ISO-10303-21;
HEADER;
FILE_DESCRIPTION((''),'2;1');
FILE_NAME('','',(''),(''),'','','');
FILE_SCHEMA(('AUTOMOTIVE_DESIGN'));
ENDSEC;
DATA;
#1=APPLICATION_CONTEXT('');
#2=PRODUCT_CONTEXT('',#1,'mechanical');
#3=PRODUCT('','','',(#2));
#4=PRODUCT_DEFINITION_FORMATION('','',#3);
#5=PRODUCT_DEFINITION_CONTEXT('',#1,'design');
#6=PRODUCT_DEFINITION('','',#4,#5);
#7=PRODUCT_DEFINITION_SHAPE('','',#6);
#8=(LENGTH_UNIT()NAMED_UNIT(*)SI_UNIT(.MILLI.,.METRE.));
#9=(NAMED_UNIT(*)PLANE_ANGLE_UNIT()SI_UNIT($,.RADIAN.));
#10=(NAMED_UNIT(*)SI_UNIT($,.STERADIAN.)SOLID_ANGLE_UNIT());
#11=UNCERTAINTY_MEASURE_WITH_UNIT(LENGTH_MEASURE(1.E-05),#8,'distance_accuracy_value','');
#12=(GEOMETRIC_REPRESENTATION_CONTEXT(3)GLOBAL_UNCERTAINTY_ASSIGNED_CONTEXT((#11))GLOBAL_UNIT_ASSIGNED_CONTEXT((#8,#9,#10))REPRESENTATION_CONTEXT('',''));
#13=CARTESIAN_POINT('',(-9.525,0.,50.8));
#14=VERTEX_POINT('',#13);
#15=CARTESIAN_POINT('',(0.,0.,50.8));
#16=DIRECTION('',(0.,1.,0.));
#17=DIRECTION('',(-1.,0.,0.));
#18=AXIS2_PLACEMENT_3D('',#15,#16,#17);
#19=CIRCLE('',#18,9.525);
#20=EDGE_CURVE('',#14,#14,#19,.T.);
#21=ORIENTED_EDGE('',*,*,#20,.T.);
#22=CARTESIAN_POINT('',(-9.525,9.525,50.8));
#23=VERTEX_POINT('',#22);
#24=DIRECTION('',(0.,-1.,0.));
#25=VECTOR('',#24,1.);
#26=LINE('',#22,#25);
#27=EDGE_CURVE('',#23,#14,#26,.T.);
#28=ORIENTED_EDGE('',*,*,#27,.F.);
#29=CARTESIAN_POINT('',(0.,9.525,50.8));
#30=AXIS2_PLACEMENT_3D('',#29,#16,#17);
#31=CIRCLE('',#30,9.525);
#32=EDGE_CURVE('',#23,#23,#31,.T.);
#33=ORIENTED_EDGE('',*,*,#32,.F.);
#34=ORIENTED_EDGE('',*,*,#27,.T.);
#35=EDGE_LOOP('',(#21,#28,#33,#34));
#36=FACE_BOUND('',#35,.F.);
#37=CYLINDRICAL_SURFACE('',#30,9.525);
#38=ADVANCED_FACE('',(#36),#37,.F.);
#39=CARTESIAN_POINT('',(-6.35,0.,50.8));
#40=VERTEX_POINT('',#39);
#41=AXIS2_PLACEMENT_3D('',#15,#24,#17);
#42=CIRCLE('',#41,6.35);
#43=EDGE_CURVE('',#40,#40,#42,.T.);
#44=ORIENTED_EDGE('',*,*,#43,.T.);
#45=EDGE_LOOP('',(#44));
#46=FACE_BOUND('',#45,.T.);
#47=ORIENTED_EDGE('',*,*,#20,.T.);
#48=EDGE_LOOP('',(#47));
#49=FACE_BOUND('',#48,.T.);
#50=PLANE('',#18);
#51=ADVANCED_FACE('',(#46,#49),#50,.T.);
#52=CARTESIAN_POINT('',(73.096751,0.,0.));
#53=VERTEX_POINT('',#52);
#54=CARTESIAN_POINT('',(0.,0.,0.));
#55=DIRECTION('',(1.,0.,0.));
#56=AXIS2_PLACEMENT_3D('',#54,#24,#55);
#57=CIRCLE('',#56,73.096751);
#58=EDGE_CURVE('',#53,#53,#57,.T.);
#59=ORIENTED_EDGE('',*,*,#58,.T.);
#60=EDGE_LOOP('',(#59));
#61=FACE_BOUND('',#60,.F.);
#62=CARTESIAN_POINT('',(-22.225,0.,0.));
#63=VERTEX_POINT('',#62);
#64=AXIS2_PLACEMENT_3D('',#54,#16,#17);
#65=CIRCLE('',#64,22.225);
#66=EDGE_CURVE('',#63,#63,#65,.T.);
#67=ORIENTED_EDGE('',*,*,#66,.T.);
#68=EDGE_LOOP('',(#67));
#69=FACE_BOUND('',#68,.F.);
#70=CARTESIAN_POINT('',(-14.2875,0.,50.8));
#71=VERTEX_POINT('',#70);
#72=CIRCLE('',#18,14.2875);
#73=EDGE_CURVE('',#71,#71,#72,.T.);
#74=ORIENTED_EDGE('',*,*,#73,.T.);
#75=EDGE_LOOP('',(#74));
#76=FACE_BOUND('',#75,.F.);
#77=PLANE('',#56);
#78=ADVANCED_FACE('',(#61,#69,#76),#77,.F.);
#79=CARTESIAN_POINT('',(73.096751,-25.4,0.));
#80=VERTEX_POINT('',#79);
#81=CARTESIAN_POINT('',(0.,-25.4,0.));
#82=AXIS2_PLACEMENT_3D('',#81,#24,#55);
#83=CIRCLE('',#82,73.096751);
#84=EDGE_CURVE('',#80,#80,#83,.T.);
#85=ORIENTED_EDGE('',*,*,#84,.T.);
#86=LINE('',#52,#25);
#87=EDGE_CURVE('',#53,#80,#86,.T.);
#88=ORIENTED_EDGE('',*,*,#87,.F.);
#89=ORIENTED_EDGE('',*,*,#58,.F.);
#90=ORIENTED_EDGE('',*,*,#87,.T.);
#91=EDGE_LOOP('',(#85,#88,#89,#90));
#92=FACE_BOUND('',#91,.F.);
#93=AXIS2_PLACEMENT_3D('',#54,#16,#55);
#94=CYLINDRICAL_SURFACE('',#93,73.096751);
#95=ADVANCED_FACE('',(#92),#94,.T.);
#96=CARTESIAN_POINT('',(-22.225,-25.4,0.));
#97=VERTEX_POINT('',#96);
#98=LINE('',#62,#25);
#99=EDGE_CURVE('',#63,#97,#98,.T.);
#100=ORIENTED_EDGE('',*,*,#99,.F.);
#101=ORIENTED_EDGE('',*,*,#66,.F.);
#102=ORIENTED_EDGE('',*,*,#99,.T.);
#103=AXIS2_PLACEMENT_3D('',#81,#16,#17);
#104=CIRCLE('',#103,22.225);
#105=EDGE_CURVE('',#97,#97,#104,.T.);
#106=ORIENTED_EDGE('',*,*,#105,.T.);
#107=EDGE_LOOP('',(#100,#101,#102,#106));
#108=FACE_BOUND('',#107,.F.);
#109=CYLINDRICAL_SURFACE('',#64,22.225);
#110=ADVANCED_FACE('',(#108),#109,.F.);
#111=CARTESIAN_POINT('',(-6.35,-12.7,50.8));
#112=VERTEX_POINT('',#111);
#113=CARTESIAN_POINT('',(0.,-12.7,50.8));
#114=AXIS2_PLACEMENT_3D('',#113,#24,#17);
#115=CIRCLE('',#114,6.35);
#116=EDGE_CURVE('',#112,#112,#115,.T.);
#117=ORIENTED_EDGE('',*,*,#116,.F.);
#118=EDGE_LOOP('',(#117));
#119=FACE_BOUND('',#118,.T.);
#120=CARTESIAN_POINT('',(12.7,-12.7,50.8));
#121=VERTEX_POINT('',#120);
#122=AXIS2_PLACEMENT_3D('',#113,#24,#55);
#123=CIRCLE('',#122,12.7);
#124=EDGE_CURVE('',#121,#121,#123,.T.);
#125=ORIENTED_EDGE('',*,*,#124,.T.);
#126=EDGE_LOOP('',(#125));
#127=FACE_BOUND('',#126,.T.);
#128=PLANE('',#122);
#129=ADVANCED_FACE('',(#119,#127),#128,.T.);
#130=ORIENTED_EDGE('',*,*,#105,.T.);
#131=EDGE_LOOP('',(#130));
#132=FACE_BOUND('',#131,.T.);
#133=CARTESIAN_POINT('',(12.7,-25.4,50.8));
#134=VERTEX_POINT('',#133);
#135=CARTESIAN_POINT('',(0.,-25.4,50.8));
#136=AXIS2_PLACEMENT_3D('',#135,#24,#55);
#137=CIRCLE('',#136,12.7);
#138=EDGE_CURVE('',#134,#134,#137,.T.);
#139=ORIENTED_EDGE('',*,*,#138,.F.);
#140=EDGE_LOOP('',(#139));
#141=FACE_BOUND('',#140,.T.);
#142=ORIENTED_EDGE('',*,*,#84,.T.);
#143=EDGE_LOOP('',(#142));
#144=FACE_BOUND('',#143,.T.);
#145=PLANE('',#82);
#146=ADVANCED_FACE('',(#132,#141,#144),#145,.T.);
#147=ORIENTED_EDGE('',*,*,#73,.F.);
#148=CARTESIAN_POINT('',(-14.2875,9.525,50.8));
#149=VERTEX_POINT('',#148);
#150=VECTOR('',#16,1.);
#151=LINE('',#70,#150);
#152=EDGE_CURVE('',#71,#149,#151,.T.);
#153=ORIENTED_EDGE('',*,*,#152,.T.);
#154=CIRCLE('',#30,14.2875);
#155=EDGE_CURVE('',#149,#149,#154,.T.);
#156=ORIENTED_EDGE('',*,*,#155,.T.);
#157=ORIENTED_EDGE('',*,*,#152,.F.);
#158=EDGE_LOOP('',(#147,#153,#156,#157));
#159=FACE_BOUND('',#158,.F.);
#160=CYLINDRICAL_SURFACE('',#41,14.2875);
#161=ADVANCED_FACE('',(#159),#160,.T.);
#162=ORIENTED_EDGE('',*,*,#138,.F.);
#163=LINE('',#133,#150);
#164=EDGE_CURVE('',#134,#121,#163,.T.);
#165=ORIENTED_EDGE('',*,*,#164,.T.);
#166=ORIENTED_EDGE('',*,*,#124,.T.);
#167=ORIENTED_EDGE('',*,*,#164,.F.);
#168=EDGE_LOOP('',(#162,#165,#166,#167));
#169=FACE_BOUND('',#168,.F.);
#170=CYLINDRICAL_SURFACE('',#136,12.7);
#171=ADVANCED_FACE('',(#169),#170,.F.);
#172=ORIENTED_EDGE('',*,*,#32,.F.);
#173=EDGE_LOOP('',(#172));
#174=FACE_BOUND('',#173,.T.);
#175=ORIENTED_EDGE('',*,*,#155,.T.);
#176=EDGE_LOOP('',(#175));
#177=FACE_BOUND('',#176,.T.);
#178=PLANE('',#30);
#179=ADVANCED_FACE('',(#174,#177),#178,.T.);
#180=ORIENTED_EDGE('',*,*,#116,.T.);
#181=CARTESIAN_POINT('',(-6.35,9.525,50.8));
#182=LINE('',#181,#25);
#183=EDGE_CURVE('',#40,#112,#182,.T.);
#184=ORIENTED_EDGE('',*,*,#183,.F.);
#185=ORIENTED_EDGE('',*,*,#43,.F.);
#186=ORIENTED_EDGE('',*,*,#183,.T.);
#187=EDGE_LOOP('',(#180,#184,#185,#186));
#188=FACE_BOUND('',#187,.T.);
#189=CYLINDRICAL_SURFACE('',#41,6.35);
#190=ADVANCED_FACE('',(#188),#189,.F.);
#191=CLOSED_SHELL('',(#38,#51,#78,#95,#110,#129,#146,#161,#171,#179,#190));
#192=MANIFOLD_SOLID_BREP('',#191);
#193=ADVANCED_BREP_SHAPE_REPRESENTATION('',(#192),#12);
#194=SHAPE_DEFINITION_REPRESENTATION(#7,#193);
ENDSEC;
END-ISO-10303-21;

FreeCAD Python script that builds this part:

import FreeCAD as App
import Part
import Sketcher
from FreeCAD import Vector
Q = App.Units.Quantity

doc = App.newDocument("Part")
body = doc.addObject("PartDesign::Body", "Body")

sketch1 = body.newObject("Sketcher::SketchObject", "Sketch")
sketch1.AttachmentSupport = (doc.getObject("XZ_Plane"), [""])
sketch1.MapMode = "FlatFace"
sketch1.addGeometry(Part.Circle(Vector(0, 0, 0), Vector(0, 0, 1), 73), False)
sketch1.addConstraint([
    Sketcher.Constraint("Coincident", 0, 3, -1, 1),
    Sketcher.Constraint("Diameter", 0, 146.193502),
])
pad1 = body.newObject("PartDesign::Pad", "Pad")
pad1.Profile = sketch1
pad1.Length = Q("1 in")

sketch2 = body.newObject("Sketcher::SketchObject", "Sketch001")
sketch2.AttachmentSupport = (doc.getObject("XZ_Plane"), [""])
sketch2.MapMode = "FlatFace"
sketch2.addGeometry(Part.Circle(Vector(0, 51, 0), Vector(0, 0, 1), 6), False)
sketch2.addConstraint([
    Sketcher.Constraint("PointOnObject", 0, 3, -2),
    Sketcher.Constraint("Diameter", 0, Q("0.5 in")),
    Sketcher.Constraint("DistanceY", -1, 1, 0, 3, Q("2 in")),
])
pocket1 = body.newObject("PartDesign::Pocket", "Pocket")
pocket1.Profile = sketch2
pocket1.Length = Q("1 in")
pocket1.Reversed = True

sketch3 = body.newObject("Sketcher::SketchObject", "Sketch002")
sketch3.AttachmentSupport = (doc.getObject("XZ_Plane"), [""])
sketch3.MapMode = "FlatFace"
sketch3.addGeometry([
    Part.Circle(Vector(0, 51, 0), Vector(0, 0, 1), 14),
    Part.Circle(Vector(0, 51, 0), Vector(0, 0, 1), 6),
], False)
sketch3.addConstraint([
    Sketcher.Constraint("Coincident", 1, 3, 0, 3),
    Sketcher.Constraint("PointOnObject", 0, 3, -2),
    Sketcher.Constraint("Diameter", 1, Q("0.5 in")),
    Sketcher.Constraint("Diameter", 0, Q("1.125 in")),
    Sketcher.Constraint("DistanceY", -1, 1, 0, 3, Q("2 in")),
])
pad2 = body.newObject("PartDesign::Pad", "Pad001")
pad2.Profile = sketch3
pad2.Length = Q("0.375 in")
pad2.Reversed = True

sketch4 = body.newObject("Sketcher::SketchObject", "Sketch003")
sketch4.AttachmentSupport = (doc.getObject("XZ_Plane"), [""])
sketch4.MapMode = "FlatFace"
sketch4.AttachmentOffset = App.Placement(Vector(0, 0, -0.375 * 25.4), App.Rotation())
sketch4.addGeometry(Part.Circle(Vector(0, 51, 0), Vector(0, 0, 1), 10), False)
sketch4.addConstraint([
    Sketcher.Constraint("PointOnObject", 0, 3, -2),
    Sketcher.Constraint("Diameter", 0, Q("0.75 in")),
    Sketcher.Constraint("DistanceY", -1, 1, 0, 3, Q("2 in")),
])
pocket2 = body.newObject("PartDesign::Pocket", "Pocket001")
pocket2.Profile = sketch4
pocket2.Length = Q("0.375 in")
pocket2.Reversed = True

sketch5 = body.newObject("Sketcher::SketchObject", "Sketch004")
sketch5.AttachmentSupport = (doc.getObject("XZ_Plane"), [""])
sketch5.MapMode = "FlatFace"
sketch5.addGeometry(Part.Circle(Vector(0, 0, 0), Vector(0, 0, 1), 22), False)
sketch5.addConstraint([
    Sketcher.Constraint("Coincident", 0, 3, -1, 1),
    Sketcher.Constraint("Diameter", 0, Q("1.75 in")),
])
pocket3 = body.newObject("PartDesign::Pocket", "Pocket002")
pocket3.Profile = sketch5
pocket3.Length = Q("1 in")
pocket3.Reversed = True

sketch6 = body.newObject("Sketcher::SketchObject", "Sketch005")
sketch6.AttachmentSupport = (doc.getObject("XZ_Plane"), [""])
sketch6.MapMode = "FlatFace"
sketch6.AttachmentOffset = App.Placement(Vector(0, 0, 1 * 25.4), App.Rotation())
sketch6.addGeometry(Part.Circle(Vector(0, 51, 0), Vector(0, 0, 1), 13), False)
sketch6.addConstraint([
    Sketcher.Constraint("PointOnObject", 0, 3, -2),
    Sketcher.Constraint("Diameter", 0, Q("1 in")),
    Sketcher.Constraint("DistanceY", -1, 1, 0, 3, Q("2 in")),
])
pocket4 = body.newObject("PartDesign::Pocket", "Pocket003")
pocket4.Profile = sketch6
pocket4.Length = Q("0.5 in")

doc.recompute()
